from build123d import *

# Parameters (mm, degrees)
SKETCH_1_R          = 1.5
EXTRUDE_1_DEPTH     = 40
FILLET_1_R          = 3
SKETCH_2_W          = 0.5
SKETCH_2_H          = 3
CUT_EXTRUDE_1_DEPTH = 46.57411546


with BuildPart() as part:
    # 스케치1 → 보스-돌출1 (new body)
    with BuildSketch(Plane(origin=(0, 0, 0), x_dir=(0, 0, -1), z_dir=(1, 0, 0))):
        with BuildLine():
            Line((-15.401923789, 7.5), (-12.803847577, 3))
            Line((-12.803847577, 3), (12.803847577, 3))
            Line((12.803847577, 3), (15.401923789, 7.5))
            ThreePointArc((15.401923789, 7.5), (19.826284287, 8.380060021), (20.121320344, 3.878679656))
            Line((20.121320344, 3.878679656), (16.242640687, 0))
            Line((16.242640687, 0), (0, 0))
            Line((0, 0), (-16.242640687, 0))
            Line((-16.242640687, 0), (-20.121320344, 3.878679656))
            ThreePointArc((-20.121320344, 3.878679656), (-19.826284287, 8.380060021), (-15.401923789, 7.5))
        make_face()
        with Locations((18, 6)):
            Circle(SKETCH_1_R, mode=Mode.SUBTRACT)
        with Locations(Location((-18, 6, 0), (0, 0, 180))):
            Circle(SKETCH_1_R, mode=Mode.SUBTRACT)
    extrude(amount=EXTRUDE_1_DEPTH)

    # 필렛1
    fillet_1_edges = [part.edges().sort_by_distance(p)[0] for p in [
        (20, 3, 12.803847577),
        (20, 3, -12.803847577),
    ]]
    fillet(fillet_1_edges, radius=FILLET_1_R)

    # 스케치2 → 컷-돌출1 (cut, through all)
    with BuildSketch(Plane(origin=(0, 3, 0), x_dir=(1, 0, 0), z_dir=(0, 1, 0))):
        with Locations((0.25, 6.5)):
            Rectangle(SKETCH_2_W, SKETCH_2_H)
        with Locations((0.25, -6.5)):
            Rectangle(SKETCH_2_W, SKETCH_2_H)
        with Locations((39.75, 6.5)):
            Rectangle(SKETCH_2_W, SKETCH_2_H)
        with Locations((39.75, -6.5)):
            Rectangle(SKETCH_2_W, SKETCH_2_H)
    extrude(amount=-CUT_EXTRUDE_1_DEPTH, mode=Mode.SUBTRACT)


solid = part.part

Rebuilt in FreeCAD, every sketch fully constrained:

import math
import FreeCAD as App
import Part
import Sketcher
Q = App.Units.Quantity


def edges_at(feature, points):
    """Names of the edges that pass closest to the given points."""
    edges = feature.Shape.Edges
    near = lambda p: min(range(len(edges)), key=lambda i: edges[i].distToShape(Part.Vertex(*p))[0])
    return sorted({f"Edge{near(p) + 1}" for p in points})

doc = App.newDocument("Part")
params = doc.addObject("Spreadsheet::Sheet", "Params")
for row, (alias, value) in enumerate([
    ("sketch1_diameter", "3 mm"),
    ("sketch1_radius", "3 mm"),
    ("pad1_length", "40 mm"),
    ("fillet_radius", "3 mm"),
    ("sketch2_height", "3 mm"),
    ("sketch2_width", "0.5 mm"),
], start=1):
    params.set(f"A{row}", alias)
    params.set(f"B{row}", "=" + value)
    params.setAlias(f"B{row}", alias)

body = doc.addObject("PartDesign::Body", "Body")

# Sketch on YZ plane
sketch1 = body.newObject("Sketcher::SketchObject", "Sketch")
sketch1.AttachmentSupport = (doc.getObject("YZ_Plane"), [""])
sketch1.MapMode = "FlatFace"
sketch1.addGeometry([
    Part.LineSegment(App.Vector(3, 12.8, 0), App.Vector(7.5, 15.4, 0)),  # 0
    Part.ArcOfCircle(Part.Circle(App.Vector(6, 18, 0), App.Vector(0, 0, 1), 3), math.radians(-60), math.radians(135)),  # 1
    Part.LineSegment(App.Vector(3.9, 20.1, 0), App.Vector(0, 16.2, 0)),  # 2
    Part.LineSegment(App.Vector(0, 16.2, 0), App.Vector(0, -16.2, 0)),  # 3
    Part.LineSegment(App.Vector(0, -16.2, 0), App.Vector(3.9, -20.1, 0)),  # 4
    Part.ArcOfCircle(Part.Circle(App.Vector(6, -18, 0), App.Vector(0, 0, 1), 3), math.radians(-135), math.radians(60)),  # 5
    Part.LineSegment(App.Vector(7.5, -15.4, 0), App.Vector(3, -12.8, 0)),  # 6
    Part.LineSegment(App.Vector(3, -12.8, 0), App.Vector(3, 12.8, 0)),  # 7
    Part.Circle(App.Vector(6, -18, 0), App.Vector(0, 0, 1), 1.5),  # 8
    Part.Circle(App.Vector(6, 18, 0), App.Vector(0, 0, 1), 1.5),  # 9
], False)
sketch1.addConstraint([
    Sketcher.Constraint("Tangent", 0, 2, 1, 1),
    Sketcher.Constraint("Tangent", 1, 2, 2, 1),
    Sketcher.Constraint("Coincident", 2, 2, 3, 1),
    Sketcher.Constraint("Coincident", 3, 2, 4, 1),
    Sketcher.Constraint("Tangent", 4, 2, 5, 1),
    Sketcher.Constraint("Tangent", 5, 2, 6, 1),
    Sketcher.Constraint("Coincident", 6, 2, 7, 1),
    Sketcher.Constraint("Coincident", 7, 2, 0, 1),
    Sketcher.Constraint("Vertical", 3),
    Sketcher.Constraint("Vertical", 7),
    Sketcher.Constraint("Coincident", 8, 3, 5, 3),
    Sketcher.Constraint("Coincident", 9, 3, 1, 3),
    Sketcher.Constraint("Equal", 1, 5),
    Sketcher.Constraint("Equal", 8, 9),
    Sketcher.Constraint("Symmetric", 2, 2, 3, 2, -1, 1),
    Sketcher.Constraint("Symmetric", 1, 3, 5, 3, -1),
    Sketcher.Constraint("Perpendicular", 2, 4),
    Sketcher.Constraint("Vertical", 0, 2, 5, 2),
    Sketcher.Constraint("Diameter", 8, 3.0),
    Sketcher.Constraint("Radius", 1, 3.0),
    Sketcher.Constraint("Angle", 0, Q("30 deg")),
    Sketcher.Constraint("DistanceX", -1, 1, 1, 3, 6.0),
    Sketcher.Constraint("DistanceY", -1, 1, 1, 3, 18.0),
    Sketcher.Constraint("DistanceX", -1, 1, 6, 2, 3.0),
])
sketch1.setExpression("Constraints[18]", "Params.sketch1_diameter")
sketch1.setExpression("Constraints[19]", "Params.sketch1_radius")
pad1 = body.newObject("PartDesign::Pad", "Pad")
pad1.Profile = sketch1
pad1.setExpression("Length", "Params.pad1_length")
doc.recompute()

fillet = body.newObject("PartDesign::Fillet", "Fillet")
fillet.Base = (pad1, edges_at(pad1, [(20, 3, 12.804), (20, 3, -12.804)]))
fillet.setExpression("Radius", "Params.fillet_radius")

# Sketch on XZ plane
sketch2 = body.newObject("Sketcher::SketchObject", "Sketch001")
sketch2.AttachmentSupport = (doc.getObject("XZ_Plane"), [""])
sketch2.MapMode = "FlatFace"
sketch2.AttachmentOffset = App.Placement(App.Vector(0, 0, -3), App.Rotation())
sketch2.addGeometry([
    Part.LineSegment(App.Vector(0, -8, 0), App.Vector(0, -5, 0)),  # 0
    Part.LineSegment(App.Vector(0, -5, 0), App.Vector(0.5, -5, 0)),  # 1
    Part.LineSegment(App.Vector(0.5, -5, 0), App.Vector(0.5, -8, 0)),  # 2
    Part.LineSegment(App.Vector(0.5, -8, 0), App.Vector(0, -8, 0)),  # 3
    Part.LineSegment(App.Vector(0, 5, 0), App.Vector(0, 8, 0)),  # 4
    Part.LineSegment(App.Vector(0, 8, 0), App.Vector(0.5, 8, 0)),  # 5
    Part.LineSegment(App.Vector(0.5, 8, 0), App.Vector(0.5, 5, 0)),  # 6
    Part.LineSegment(App.Vector(0.5, 5, 0), App.Vector(0, 5, 0)),  # 7
    Part.LineSegment(App.Vector(39.5, -8, 0), App.Vector(39.5, -5, 0)),  # 8
    Part.LineSegment(App.Vector(39.5, -5, 0), App.Vector(40, -5, 0)),  # 9
    Part.LineSegment(App.Vector(40, -5, 0), App.Vector(40, -8, 0)),  # 10
    Part.LineSegment(App.Vector(40, -8, 0), App.Vector(39.5, -8, 0)),  # 11
    Part.LineSegment(App.Vector(39.5, 5, 0), App.Vector(39.5, 8, 0)),  # 12
    Part.LineSegment(App.Vector(39.5, 8, 0), App.Vector(40, 8, 0)),  # 13
    Part.LineSegment(App.Vector(40, 8, 0), App.Vector(40, 5, 0)),  # 14
    Part.LineSegment(App.Vector(40, 5, 0), App.Vector(39.5, 5, 0)),  # 15
], False)
sketch2.addConstraint([
    Sketcher.Constraint("Coincident", 0, 2, 1, 1),
    Sketcher.Constraint("Coincident", 1, 2, 2, 1),
    Sketcher.Constraint("Coincident", 2, 2, 3, 1),
    Sketcher.Constraint("Coincident", 3, 2, 0, 1),
    Sketcher.Constraint("Coincident", 4, 2, 5, 1),
    Sketcher.Constraint("Coincident", 5, 2, 6, 1),
    Sketcher.Constraint("Coincident", 6, 2, 7, 1),
    Sketcher.Constraint("Coincident", 7, 2, 4, 1),
    Sketcher.Constraint("Coincident", 8, 2, 9, 1),
    Sketcher.Constraint("Coincident", 9, 2, 10, 1),
    Sketcher.Constraint("Coincident", 10, 2, 11, 1),
    Sketcher.Constraint("Coincident", 11, 2, 8, 1),
    Sketcher.Constraint("Coincident", 12, 2, 13, 1),
    Sketcher.Constraint("Coincident", 13, 2, 14, 1),
    Sketcher.Constraint("Coincident", 14, 2, 15, 1),
    Sketcher.Constraint("Coincident", 15, 2, 12, 1),
    Sketcher.Constraint("Vertical", 0),
    Sketcher.Constraint("Horizontal", 1),
    Sketcher.Constraint("Vertical", 2),
    Sketcher.Constraint("Horizontal", 3),
    Sketcher.Constraint("Vertical", 4),
    Sketcher.Constraint("Horizontal", 5),
    Sketcher.Constraint("Vertical", 6),
    Sketcher.Constraint("Horizontal", 7),
    Sketcher.Constraint("Vertical", 8),
    Sketcher.Constraint("Horizontal", 9),
    Sketcher.Constraint("Vertical", 10),
    Sketcher.Constraint("Horizontal", 11),
    Sketcher.Constraint("Vertical", 12),
    Sketcher.Constraint("Horizontal", 13),
    Sketcher.Constraint("Vertical", 14),
    Sketcher.Constraint("Horizontal", 15),
    Sketcher.Constraint("Symmetric", 3, 2, 4, 2, -1, 1),
    Sketcher.Constraint("Symmetric", 1, 2, 6, 2, -1),
    Sketcher.Constraint("Symmetric", 11, 2, 12, 2, -1),
    Sketcher.Constraint("Symmetric", 9, 2, 14, 2, -1),
    Sketcher.Constraint("PointOnObject", 0, 2, -2),
    Sketcher.Constraint("Horizontal", 1, 2, 8, 2),
    Sketcher.Constraint("Horizontal", 3, 2, 10, 2),
    Sketcher.Constraint("Equal", 7, 9),
    Sketcher.Constraint("DistanceY", 0, 1, 0, 2, 3.0),
    Sketcher.Constraint("DistanceX", 1, 1, 1, 2, 0.5),
    Sketcher.Constraint("DistanceY", 0, 2, -1, 1, 5.0),
    Sketcher.Constraint("DistanceX", -1, 1, 9, 2, 40.0),
])
sketch2.setExpression("Constraints[40]", "Params.sketch2_height")
sketch2.setExpression("Constraints[41]", "Params.sketch2_width")
pocket1 = body.newObject("PartDesign::Pocket", "Pocket")
pocket1.Profile = sketch2
pocket1.Type = "ThroughAll"
pocket1.Reversed = True

doc.recompute()
